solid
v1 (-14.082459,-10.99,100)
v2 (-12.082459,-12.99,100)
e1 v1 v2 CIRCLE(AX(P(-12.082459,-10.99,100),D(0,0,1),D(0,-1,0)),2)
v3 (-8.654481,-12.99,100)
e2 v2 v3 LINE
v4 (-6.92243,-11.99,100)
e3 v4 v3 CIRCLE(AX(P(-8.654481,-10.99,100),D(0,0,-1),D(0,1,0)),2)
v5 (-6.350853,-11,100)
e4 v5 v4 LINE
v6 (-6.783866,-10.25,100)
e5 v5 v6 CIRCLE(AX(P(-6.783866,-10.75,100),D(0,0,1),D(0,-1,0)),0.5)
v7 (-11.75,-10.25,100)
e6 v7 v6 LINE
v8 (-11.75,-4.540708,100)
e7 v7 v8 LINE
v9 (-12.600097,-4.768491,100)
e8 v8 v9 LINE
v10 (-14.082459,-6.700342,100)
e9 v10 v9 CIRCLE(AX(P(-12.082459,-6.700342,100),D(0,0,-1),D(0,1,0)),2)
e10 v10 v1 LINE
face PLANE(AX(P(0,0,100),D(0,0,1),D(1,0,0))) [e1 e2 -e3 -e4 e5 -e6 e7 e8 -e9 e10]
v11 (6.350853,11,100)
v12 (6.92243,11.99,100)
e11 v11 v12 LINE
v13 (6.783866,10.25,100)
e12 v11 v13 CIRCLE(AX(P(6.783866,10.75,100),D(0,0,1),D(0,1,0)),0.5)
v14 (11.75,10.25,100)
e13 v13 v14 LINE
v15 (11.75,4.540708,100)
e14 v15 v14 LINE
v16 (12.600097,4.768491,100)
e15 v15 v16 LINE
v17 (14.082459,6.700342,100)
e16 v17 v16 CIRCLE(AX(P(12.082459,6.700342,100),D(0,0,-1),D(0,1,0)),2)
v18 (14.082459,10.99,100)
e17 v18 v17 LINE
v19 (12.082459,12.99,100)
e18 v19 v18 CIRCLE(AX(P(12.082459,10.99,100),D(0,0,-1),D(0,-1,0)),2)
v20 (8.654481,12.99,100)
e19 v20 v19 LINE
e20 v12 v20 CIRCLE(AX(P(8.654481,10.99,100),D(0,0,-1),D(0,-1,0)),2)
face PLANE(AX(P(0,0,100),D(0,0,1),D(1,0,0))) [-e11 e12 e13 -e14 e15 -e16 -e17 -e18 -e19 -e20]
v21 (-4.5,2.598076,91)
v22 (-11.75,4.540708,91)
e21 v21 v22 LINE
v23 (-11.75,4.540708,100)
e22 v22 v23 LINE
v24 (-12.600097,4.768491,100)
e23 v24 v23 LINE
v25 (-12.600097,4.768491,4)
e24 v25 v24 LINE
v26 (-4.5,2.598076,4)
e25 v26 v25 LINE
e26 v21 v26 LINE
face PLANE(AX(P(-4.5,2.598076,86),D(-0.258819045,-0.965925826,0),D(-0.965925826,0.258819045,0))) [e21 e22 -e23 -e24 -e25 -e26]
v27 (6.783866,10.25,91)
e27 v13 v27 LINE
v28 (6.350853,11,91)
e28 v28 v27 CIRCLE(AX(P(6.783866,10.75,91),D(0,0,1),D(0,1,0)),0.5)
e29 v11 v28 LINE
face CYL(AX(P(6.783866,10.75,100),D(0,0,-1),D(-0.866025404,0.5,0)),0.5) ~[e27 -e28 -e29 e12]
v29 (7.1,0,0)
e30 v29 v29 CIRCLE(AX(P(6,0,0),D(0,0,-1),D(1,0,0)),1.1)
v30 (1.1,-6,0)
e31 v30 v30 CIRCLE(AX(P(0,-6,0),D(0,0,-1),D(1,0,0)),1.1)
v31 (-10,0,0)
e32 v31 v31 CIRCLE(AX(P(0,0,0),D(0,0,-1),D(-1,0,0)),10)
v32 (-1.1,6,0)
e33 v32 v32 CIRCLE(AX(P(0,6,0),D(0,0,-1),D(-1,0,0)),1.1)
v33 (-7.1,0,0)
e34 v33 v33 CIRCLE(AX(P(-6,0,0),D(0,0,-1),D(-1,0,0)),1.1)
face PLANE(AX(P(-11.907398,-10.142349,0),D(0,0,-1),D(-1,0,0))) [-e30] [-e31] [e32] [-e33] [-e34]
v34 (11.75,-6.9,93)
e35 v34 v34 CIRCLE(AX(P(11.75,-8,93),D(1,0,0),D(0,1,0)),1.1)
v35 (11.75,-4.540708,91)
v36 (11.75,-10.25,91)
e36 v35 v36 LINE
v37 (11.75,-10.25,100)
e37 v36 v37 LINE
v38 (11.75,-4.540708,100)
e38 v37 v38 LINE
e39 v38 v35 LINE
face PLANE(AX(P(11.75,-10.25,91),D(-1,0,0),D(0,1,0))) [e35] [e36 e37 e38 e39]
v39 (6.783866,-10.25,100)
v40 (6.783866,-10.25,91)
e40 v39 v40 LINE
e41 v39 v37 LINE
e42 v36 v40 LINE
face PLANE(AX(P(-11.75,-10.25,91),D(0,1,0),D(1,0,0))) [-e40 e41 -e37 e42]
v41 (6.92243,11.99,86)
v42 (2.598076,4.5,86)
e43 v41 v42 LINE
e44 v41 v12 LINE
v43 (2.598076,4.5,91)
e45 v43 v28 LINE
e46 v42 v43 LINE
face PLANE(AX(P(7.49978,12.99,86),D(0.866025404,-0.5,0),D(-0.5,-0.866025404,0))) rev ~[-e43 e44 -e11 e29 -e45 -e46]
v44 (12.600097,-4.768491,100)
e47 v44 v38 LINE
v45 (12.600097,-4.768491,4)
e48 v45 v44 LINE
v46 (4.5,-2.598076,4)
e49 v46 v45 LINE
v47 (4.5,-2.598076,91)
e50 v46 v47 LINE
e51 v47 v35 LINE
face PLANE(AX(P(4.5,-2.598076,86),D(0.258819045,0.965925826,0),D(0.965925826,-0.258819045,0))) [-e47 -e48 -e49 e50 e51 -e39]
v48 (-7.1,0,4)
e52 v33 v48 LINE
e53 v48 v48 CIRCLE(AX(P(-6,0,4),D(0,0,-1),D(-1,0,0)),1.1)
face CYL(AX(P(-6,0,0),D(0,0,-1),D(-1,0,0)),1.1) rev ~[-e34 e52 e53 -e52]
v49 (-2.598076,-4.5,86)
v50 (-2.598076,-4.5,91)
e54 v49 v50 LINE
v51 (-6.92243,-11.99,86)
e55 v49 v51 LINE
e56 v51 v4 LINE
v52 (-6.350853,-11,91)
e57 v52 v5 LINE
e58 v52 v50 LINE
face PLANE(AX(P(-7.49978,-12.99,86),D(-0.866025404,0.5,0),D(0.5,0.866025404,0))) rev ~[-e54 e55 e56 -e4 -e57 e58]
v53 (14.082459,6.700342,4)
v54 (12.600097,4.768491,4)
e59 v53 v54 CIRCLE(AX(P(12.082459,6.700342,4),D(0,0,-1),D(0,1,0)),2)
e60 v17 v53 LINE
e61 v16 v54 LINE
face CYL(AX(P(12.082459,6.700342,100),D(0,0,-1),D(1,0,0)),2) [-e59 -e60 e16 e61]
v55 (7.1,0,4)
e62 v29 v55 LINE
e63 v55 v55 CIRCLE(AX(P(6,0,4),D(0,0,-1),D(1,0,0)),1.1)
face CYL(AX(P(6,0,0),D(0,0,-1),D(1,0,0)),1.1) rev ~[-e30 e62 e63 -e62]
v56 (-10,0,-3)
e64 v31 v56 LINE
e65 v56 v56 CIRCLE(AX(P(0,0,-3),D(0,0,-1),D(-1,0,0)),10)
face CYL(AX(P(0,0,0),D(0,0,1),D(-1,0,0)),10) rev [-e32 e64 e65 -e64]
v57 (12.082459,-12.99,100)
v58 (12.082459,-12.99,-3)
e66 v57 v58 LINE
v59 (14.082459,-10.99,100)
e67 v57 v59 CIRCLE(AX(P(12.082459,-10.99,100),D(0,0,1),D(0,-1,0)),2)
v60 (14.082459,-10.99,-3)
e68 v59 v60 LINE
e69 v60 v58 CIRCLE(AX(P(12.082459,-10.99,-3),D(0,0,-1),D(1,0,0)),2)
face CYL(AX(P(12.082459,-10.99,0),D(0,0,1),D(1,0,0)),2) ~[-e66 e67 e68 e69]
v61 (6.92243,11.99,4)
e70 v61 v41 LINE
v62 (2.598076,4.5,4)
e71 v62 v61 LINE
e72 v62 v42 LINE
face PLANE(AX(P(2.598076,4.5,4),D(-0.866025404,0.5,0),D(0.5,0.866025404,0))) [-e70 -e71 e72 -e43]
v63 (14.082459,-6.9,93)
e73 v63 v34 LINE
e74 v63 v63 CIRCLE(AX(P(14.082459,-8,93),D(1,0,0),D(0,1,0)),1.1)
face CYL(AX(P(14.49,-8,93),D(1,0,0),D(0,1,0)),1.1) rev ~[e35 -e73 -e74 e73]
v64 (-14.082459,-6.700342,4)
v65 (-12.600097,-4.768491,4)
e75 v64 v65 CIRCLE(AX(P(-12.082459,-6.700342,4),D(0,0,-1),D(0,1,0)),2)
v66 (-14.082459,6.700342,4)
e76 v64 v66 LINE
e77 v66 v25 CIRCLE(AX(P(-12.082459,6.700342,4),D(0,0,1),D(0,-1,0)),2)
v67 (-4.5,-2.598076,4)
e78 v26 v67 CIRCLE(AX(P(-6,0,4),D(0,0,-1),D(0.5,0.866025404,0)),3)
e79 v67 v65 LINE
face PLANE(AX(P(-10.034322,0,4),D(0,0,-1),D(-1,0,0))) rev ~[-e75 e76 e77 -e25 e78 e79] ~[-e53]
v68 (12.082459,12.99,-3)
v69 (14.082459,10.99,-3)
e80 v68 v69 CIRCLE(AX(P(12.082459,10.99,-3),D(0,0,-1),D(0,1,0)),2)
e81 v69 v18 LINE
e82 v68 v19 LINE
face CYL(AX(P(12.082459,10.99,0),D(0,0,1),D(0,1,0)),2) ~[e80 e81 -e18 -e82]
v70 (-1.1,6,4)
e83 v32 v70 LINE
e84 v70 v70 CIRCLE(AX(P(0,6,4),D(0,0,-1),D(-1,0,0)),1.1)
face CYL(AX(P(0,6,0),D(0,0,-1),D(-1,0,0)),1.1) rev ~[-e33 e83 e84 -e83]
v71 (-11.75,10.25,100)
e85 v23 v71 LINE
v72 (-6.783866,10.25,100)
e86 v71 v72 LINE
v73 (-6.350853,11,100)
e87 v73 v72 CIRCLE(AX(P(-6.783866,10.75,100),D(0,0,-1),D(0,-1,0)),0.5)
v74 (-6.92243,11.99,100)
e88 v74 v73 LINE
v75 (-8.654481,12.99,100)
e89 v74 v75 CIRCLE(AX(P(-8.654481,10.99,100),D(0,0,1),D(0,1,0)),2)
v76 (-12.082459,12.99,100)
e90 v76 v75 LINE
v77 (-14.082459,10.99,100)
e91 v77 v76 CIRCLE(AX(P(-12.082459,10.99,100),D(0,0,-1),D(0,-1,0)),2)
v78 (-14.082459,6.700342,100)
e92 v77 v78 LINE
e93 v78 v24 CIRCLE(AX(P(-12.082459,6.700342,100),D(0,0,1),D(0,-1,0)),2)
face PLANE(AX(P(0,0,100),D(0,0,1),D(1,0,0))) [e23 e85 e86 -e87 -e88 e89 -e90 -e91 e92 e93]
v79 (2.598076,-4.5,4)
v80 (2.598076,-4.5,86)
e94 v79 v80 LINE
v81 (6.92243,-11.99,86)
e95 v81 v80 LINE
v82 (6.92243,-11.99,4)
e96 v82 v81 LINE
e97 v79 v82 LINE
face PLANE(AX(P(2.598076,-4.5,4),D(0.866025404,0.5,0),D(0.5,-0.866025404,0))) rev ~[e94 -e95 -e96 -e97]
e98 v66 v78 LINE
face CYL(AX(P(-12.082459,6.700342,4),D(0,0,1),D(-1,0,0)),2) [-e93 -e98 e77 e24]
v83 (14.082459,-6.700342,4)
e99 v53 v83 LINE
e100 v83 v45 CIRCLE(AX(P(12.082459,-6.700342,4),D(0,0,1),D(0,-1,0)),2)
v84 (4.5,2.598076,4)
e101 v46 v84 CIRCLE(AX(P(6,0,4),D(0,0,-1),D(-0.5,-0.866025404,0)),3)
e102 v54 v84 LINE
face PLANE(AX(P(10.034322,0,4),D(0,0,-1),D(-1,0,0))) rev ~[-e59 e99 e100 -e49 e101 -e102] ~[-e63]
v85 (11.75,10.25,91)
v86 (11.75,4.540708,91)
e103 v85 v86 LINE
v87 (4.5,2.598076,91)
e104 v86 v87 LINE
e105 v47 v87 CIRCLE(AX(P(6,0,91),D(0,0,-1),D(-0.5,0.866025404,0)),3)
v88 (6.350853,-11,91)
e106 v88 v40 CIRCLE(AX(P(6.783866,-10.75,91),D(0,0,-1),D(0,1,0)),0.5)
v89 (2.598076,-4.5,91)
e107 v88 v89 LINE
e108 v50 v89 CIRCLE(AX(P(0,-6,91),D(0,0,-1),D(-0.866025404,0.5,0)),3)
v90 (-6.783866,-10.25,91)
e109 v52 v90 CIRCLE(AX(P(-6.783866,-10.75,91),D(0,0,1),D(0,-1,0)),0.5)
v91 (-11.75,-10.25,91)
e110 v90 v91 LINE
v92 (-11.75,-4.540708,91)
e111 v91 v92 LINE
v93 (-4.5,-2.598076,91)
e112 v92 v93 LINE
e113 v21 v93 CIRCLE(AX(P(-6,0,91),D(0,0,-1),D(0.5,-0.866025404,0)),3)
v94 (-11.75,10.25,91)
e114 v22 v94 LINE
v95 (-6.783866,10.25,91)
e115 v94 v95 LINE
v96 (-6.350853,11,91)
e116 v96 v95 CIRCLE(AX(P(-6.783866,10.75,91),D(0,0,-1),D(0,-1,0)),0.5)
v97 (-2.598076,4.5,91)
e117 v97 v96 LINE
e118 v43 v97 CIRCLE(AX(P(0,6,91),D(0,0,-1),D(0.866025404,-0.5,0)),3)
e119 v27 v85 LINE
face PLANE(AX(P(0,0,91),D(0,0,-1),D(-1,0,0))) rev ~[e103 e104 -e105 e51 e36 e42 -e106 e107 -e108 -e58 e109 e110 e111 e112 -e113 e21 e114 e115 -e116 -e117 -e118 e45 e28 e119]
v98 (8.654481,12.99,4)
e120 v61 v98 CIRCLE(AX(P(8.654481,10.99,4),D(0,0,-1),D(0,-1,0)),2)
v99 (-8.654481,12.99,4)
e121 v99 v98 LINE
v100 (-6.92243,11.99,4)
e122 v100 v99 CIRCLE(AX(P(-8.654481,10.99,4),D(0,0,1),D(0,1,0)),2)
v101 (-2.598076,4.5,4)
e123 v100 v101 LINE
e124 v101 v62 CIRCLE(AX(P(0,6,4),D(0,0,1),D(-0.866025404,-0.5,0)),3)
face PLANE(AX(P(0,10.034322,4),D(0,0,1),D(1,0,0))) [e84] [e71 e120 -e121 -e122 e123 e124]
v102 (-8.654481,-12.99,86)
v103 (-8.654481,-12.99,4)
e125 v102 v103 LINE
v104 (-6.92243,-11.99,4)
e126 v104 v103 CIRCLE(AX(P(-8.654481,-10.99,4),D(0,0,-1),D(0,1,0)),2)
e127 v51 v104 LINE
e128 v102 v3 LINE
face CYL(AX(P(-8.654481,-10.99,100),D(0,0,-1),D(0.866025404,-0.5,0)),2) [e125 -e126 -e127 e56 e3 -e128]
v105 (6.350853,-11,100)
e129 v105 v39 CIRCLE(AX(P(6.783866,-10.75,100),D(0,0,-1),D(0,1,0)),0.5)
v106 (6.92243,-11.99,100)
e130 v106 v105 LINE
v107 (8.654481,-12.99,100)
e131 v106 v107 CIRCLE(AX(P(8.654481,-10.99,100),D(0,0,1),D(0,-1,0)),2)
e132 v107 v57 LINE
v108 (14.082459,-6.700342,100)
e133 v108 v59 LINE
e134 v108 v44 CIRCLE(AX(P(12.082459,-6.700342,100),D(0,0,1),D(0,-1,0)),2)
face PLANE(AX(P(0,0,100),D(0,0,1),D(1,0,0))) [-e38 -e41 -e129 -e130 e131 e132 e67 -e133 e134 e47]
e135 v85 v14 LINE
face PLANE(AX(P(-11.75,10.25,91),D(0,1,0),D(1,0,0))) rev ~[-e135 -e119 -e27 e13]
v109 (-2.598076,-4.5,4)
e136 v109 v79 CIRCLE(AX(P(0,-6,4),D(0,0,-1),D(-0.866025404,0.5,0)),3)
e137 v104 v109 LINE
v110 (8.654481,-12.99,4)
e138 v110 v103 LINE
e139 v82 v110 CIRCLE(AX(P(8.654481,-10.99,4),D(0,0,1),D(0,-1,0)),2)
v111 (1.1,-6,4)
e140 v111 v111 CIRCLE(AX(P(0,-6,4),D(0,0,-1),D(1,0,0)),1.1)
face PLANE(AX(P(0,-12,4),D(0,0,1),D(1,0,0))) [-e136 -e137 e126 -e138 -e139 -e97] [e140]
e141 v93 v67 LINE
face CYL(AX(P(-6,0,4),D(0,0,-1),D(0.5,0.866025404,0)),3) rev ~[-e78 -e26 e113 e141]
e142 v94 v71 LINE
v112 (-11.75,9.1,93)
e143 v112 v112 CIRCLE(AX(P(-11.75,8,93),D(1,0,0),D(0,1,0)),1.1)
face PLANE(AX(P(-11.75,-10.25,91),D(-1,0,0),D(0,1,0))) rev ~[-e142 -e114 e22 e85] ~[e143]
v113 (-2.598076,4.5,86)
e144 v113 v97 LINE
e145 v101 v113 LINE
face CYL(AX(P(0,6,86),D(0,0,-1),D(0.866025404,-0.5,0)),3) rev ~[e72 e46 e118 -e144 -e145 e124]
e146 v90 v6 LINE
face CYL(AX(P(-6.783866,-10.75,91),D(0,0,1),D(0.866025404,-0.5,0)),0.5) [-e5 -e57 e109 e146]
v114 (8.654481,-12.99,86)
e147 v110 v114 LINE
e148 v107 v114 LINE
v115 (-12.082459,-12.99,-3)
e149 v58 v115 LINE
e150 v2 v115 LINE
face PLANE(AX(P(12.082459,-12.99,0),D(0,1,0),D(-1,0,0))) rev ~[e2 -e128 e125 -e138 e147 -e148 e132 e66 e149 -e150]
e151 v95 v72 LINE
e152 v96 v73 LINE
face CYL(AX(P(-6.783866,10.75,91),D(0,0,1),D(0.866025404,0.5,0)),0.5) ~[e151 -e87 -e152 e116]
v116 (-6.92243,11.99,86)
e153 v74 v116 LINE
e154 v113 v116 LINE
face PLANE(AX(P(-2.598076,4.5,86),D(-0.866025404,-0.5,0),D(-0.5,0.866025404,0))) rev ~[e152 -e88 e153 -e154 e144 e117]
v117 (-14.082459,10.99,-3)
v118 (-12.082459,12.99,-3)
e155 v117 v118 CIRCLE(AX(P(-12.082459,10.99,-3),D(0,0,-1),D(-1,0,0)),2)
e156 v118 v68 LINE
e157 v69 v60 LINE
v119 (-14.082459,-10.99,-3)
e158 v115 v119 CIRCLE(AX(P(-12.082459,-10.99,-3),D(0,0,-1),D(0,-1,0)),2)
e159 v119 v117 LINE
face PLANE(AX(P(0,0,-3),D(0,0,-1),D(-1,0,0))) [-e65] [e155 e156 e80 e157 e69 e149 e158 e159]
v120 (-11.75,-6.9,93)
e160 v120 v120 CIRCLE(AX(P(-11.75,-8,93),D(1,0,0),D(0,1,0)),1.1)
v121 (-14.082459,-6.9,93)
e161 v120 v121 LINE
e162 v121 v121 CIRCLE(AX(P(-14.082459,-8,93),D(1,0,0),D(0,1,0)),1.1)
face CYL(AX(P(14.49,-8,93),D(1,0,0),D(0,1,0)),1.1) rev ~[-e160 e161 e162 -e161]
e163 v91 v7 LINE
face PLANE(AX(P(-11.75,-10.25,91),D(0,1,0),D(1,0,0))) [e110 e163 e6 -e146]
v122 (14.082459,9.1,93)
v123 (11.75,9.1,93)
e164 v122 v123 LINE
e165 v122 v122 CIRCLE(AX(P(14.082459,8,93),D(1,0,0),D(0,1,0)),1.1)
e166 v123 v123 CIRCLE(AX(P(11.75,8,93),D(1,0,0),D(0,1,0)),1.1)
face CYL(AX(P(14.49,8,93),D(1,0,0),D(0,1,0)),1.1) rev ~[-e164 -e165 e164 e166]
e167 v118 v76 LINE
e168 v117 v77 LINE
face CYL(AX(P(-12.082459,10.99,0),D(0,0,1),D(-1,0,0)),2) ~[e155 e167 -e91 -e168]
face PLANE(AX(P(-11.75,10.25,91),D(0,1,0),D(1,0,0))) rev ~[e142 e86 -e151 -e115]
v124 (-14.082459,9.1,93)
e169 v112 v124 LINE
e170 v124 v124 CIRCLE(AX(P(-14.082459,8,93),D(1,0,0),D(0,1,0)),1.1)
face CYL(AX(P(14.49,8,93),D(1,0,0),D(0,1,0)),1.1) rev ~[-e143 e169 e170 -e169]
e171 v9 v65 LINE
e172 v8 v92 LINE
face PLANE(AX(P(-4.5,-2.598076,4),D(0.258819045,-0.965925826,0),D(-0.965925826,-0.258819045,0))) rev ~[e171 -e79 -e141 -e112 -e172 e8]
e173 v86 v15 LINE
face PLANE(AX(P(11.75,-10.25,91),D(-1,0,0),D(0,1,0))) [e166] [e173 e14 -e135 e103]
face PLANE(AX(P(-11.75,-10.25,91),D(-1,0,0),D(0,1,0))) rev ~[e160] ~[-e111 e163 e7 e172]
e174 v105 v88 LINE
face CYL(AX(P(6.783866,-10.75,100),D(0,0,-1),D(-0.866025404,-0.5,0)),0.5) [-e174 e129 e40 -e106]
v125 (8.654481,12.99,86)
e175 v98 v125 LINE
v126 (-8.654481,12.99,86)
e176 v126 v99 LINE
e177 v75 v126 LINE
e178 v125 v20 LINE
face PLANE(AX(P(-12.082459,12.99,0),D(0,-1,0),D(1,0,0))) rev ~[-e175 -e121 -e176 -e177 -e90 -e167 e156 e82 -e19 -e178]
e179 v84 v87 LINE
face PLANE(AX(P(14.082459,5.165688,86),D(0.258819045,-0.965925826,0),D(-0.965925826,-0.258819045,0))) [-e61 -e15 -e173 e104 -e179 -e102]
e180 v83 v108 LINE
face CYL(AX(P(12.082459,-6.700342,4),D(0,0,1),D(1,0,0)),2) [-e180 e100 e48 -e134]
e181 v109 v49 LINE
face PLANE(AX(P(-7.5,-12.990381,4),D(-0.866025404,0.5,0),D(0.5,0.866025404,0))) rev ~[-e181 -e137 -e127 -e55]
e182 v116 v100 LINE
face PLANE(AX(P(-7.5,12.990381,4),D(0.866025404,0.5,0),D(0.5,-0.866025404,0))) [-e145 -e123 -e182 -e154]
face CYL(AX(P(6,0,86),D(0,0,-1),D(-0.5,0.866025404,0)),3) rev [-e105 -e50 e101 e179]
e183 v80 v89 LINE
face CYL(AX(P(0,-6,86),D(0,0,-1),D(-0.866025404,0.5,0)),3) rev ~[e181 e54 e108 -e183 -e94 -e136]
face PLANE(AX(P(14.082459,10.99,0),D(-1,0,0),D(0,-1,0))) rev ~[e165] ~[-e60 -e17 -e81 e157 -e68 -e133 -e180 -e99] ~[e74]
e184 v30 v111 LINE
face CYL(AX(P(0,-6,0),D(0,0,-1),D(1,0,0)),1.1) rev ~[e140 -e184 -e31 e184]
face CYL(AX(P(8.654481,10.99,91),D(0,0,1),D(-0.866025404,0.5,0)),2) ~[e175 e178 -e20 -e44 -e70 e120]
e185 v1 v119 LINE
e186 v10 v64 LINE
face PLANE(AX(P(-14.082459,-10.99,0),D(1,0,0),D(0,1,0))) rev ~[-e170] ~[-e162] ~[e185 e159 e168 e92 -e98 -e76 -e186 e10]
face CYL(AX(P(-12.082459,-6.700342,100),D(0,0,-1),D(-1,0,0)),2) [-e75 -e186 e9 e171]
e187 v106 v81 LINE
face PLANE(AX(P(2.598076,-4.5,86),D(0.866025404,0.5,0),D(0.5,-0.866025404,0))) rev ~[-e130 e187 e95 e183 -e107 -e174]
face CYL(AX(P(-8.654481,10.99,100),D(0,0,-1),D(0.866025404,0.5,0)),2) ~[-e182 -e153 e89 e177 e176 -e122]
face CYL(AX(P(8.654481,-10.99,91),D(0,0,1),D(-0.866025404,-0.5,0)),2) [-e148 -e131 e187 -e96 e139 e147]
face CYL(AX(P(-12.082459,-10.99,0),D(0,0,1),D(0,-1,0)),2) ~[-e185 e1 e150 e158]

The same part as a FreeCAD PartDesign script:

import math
import FreeCAD as App
import Part
import Sketcher
Q = App.Units.Quantity


def edges_at(feature, points):
    """Names of the edges that pass closest to the given points."""
    edges = feature.Shape.Edges
    near = lambda p: min(range(len(edges)), key=lambda i: edges[i].distToShape(Part.Vertex(*p))[0])
    return sorted({f"Edge{near(p) + 1}" for p in points})

doc = App.newDocument("Part")
body = doc.addObject("PartDesign::Body", "Body")

# Sketch on XY plane
sketch1 = body.newObject("Sketcher::SketchObject", "Sketch")
sketch1.AttachmentSupport = (doc.getObject("XY_Plane"), [""])
sketch1.MapMode = "FlatFace"
sketch1.addGeometry(Part.Circle(App.Vector(0, 0, 0), App.Vector(0, 0, 1), 15), False)
sketch1.addConstraint([
    Sketcher.Constraint("Coincident", 0, 3, -1, 1),
    Sketcher.Constraint("Diameter", 0, 30.0),
])
pad1 = body.newObject("PartDesign::Pad", "Pad")
pad1.Profile = sketch1
pad1.Length = 91

# Sketch on XY plane
sketch2 = body.newObject("Sketcher::SketchObject", "Sketch001")
sketch2.AttachmentSupport = (doc.getObject("XY_Plane"), [""])
sketch2.MapMode = "FlatFace"
sketch2.addGeometry([
    Part.Circle(App.Vector(0, 6, 0), App.Vector(0, 0, 1), 1.1),
    Part.Circle(App.Vector(0, -6, 0), App.Vector(0, 0, 1), 1.1),
    Part.Circle(App.Vector(-6, 0, 0), App.Vector(0, 0, 1), 1.1),
    Part.Circle(App.Vector(6, 0, 0), App.Vector(0, 0, 1), 1.1),
], False)
sketch2.addConstraint([
    Sketcher.Constraint("Equal", 0, 1),
    Sketcher.Constraint("Equal", 1, 2),
    Sketcher.Constraint("Equal", 2, 3),
    Sketcher.Constraint("Symmetric", 0, 3, 1, 3, -1, 1),
    Sketcher.Constraint("Symmetric", 2, 3, 3, 3, -1, 1),
    Sketcher.Constraint("PointOnObject", 0, 3, -2),
    Sketcher.Constraint("PointOnObject", 2, 3, -1),
    Sketcher.Constraint("Diameter", 0, 2.2),
    Sketcher.Constraint("DistanceY", -1, 1, 0, 3, 6.0),
    Sketcher.Constraint("DistanceX", 2, 3, -1, 1, 6.0),
])
pocket1 = body.newObject("PartDesign::Pocket", "Pocket")
pocket1.Profile = sketch2
pocket1.Length = 10
pocket1.Reversed = True

# Sketch on XY plane
sketch3 = body.newObject("Sketcher::SketchObject", "Sketch002")
sketch3.AttachmentSupport = (doc.getObject("XY_Plane"), [""])
sketch3.MapMode = "FlatFace"
sketch3.AttachmentOffset = App.Placement(App.Vector(0, 0, 91), App.Rotation())
sketch3.addGeometry([
    Part.LineSegment(App.Vector(-14, 13, 0), App.Vector(-14, -13, 0)),  # 0
    Part.LineSegment(App.Vector(-14, -13, 0), App.Vector(14, -13, 0)),  # 1
    Part.LineSegment(App.Vector(14, -13, 0), App.Vector(14, 13, 0)),  # 2
    Part.LineSegment(App.Vector(14, 13, 0), App.Vector(-14, 13, 0)),  # 3
    Part.LineSegment(App.Vector(12, -10, 0), App.Vector(-12, -10, 0)),  # 4
    Part.LineSegment(App.Vector(-12, -10, 0), App.Vector(-12, 10, 0)),  # 5
    Part.LineSegment(App.Vector(-12, 10, 0), App.Vector(12, 10, 0)),  # 6
    Part.LineSegment(App.Vector(12, 10, 0), App.Vector(12, -10, 0)),  # 7
], False)
sketch3.addConstraint([
    Sketcher.Constraint("Coincident", 0, 2, 1, 1),
    Sketcher.Constraint("Coincident", 1, 2, 2, 1),
    Sketcher.Constraint("Coincident", 2, 2, 3, 1),
    Sketcher.Constraint("Coincident", 3, 2, 0, 1),
    Sketcher.Constraint("Coincident", 4, 2, 5, 1),
    Sketcher.Constraint("Coincident", 5, 2, 6, 1),
    Sketcher.Constraint("Coincident", 6, 2, 7, 1),
    Sketcher.Constraint("Coincident", 7, 2, 4, 1),
    Sketcher.Constraint("Vertical", 0),
    Sketcher.Constraint("Horizontal", 1),
    Sketcher.Constraint("Vertical", 2),
    Sketcher.Constraint("Horizontal", 3),
    Sketcher.Constraint("Horizontal", 4),
    Sketcher.Constraint("Vertical", 5),
    Sketcher.Constraint("Horizontal", 6),
    Sketcher.Constraint("Vertical", 7),
    Sketcher.Constraint("Symmetric", 0, 2, 2, 2, -1, 1),
    Sketcher.Constraint("Symmetric", 4, 2, 6, 2, -1, 1),
    Sketcher.Constraint("DistanceX", 4, 2, 4, 1, 23.5),
    Sketcher.Constraint("DistanceY", 5, 1, 5, 2, 20.5),
    Sketcher.Constraint("DistanceX", 1, 1, 1, 2, 28.98),
    Sketcher.Constraint("DistanceY", 0, 2, 0, 1, 25.98),
])
pad2 = body.newObject("PartDesign::Pad", "Pad001")
pad2.Profile = sketch3
pad2.Length = 9

# Sketch on XY plane
sketch4 = body.newObject("Sketcher::SketchObject", "Sketch003")
sketch4.AttachmentSupport = (doc.getObject("XY_Plane"), [""])
sketch4.MapMode = "FlatFace"
sketch4.AttachmentOffset = App.Placement(App.Vector(0, 0, 4), App.Rotation())
sketch4.addGeometry([
    Part.LineSegment(App.Vector(7.5, 13, 0), App.Vector(2.6, 4.5, 0)),  # 0
    Part.ArcOfCircle(Part.Circle(App.Vector(0, 6, 0), App.Vector(0, 0, 1), 3), math.radians(-150), math.radians(-30)),  # 1
    Part.LineSegment(App.Vector(-2.6, 4.5, 0), App.Vector(-7.5, 13, 0)),  # 2
    Part.ArcOfCircle(Part.Circle(App.Vector(0, 0, 0), App.Vector(0, 0, 1), 15), math.radians(60), math.radians(120)),  # 3
    Part.LineSegment(App.Vector(-4.5, -2.6, 0), App.Vector(-13, -7.5, 0)),  # 4
    Part.ArcOfCircle(Part.Circle(App.Vector(0, 0, 0), App.Vector(0, 0, 1), 15), math.radians(150), math.radians(210)),  # 5
    Part.LineSegment(App.Vector(-13, 7.5, 0), App.Vector(-4.5, 2.6, 0)),  # 6
    Part.ArcOfCircle(Part.Circle(App.Vector(-6, 0, 0), App.Vector(0, 0, 1), 3), math.radians(-60), math.radians(60)),  # 7
    Part.LineSegment(App.Vector(2.6, -4.5, 0), App.Vector(7.5, -13, 0)),  # 8
    Part.ArcOfCircle(Part.Circle(App.Vector(0, 0, 0), App.Vector(0, 0, 1), 15), math.radians(-120), math.radians(-60)),  # 9
    Part.LineSegment(App.Vector(-7.5, -13, 0), App.Vector(-2.6, -4.5, 0)),  # 10
    Part.ArcOfCircle(Part.Circle(App.Vector(0, -6, 0), App.Vector(0, 0, 1), 3), math.radians(30), math.radians(150)),  # 11
    Part.LineSegment(App.Vector(4.5, 2.6, 0), App.Vector(13, 7.5, 0)),  # 12
    Part.ArcOfCircle(Part.Circle(App.Vector(0, 0, 0), App.Vector(0, 0, 1), 15), math.radians(-30), math.radians(30)),  # 13
    Part.LineSegment(App.Vector(13, -7.5, 0), App.Vector(4.5, -2.6, 0)),  # 14
    Part.ArcOfCircle(Part.Circle(App.Vector(6, 0, 0), App.Vector(0, 0, 1), 3), math.radians(120), math.radians(240)),  # 15
], False)
sketch4.addConstraint([
    Sketcher.Constraint("Tangent", 0, 2, 1, 2),
    Sketcher.Constraint("Tangent", 1, 1, 2, 1),
    Sketcher.Constraint("Coincident", 2, 2, 3, 2),
    Sketcher.Constraint("Coincident", 3, 1, 0, 1),
    Sketcher.Constraint("Coincident", 4, 2, 5, 2),
    Sketcher.Constraint("Coincident", 5, 1, 6, 1),
    Sketcher.Constraint("Tangent", 6, 2, 7, 2),
    Sketcher.Constraint("Tangent", 7, 1, 4, 1),
    Sketcher.Constraint("Coincident", 8, 2, 9, 2),
    Sketcher.Constraint("Coincident", 9, 1, 10, 1),
    Sketcher.Constraint("Tangent", 10, 2, 11, 2),
    Sketcher.Constraint("Tangent", 11, 1, 8, 1),
    Sketcher.Constraint("Coincident", 12, 2, 13, 2),
    Sketcher.Constraint("Coincident", 13, 1, 14, 1),
    Sketcher.Constraint("Tangent", 14, 2, 15, 2),
    Sketcher.Constraint("Tangent", 15, 1, 12, 1),
    Sketcher.Constraint("Coincident", 3, 3, -1, 1),
    Sketcher.Constraint("Coincident", 5, 3, -1, 1),
    Sketcher.Constraint("Coincident", 9, 3, -1, 1),
    Sketcher.Constraint("Coincident", 13, 3, -1, 1),
    Sketcher.Constraint("Equal", 3, 5),
    Sketcher.Constraint("Equal", 1, 7),
    Sketcher.Constraint("Equal", 5, 9),
    Sketcher.Constraint("Equal", 7, 11),
    Sketcher.Constraint("Equal", 9, 13),
    Sketcher.Constraint("Equal", 11, 15),
    Sketcher.Constraint("Symmetric", 1, 3, 11, 3, -1, 1),
    Sketcher.Constraint("Symmetric", 7, 3, 15, 3, -1, 1),
    Sketcher.Constraint("Symmetric", 0, 2, 1, 1, -2),
    Sketcher.Constraint("Symmetric", 7, 1, 14, 2, -2),
    Sketcher.Constraint("Perpendicular", 2, 4),
    Sketcher.Constraint("Perpendicular", 0, 6),
    Sketcher.Constraint("Perpendicular", 4, 8),
    Sketcher.Constraint("Perpendicular", 6, 10),
    Sketcher.Constraint("Perpendicular", 8, 12),
    Sketcher.Constraint("Equal", 2, 4),
    Sketcher.Constraint("Radius", 1, 3.0),
    Sketcher.Constraint("Radius", 3, 15.0),
    Sketcher.Constraint("Angle", 0, Q("-120 deg")),
    Sketcher.Constraint("DistanceY", -1, 1, 1, 3, 6.0),
])
pocket2 = body.newObject("PartDesign::Pocket", "Pocket001")
pocket2.Profile = sketch4
pocket2.Length = 87
pocket2.Reversed = True

# Sketch on XY plane
sketch5 = body.newObject("Sketcher::SketchObject", "Sketch004")
sketch5.AttachmentSupport = (doc.getObject("XY_Plane"), [""])
sketch5.MapMode = "FlatFace"
sketch5.AttachmentOffset = App.Placement(App.Vector(0, 0, 91), App.Rotation())
sketch5.addGeometry([
    Part.LineSegment(App.Vector(14, 13, 0), App.Vector(14, -13, 0)),
    Part.LineSegment(App.Vector(14, -13, 0), App.Vector(-14, -13, 0)),
    Part.LineSegment(App.Vector(-14, -13, 0), App.Vector(-14, 13, 0)),
    Part.LineSegment(App.Vector(-14, 13, 0), App.Vector(14, 13, 0)),
], False)
sketch5.addConstraint([
    Sketcher.Constraint("Coincident", 0, 2, 1, 1),
    Sketcher.Constraint("Coincident", 1, 2, 2, 1),
    Sketcher.Constraint("Coincident", 2, 2, 3, 1),
    Sketcher.Constraint("Coincident", 3, 2, 0, 1),
    Sketcher.Constraint("Vertical", 0),
    Sketcher.Constraint("Horizontal", 1),
    Sketcher.Constraint("Vertical", 2),
    Sketcher.Constraint("Horizontal", 3),
    Sketcher.Constraint("Symmetric", 0, 2, 2, 2, -1, 1),
    Sketcher.Constraint("DistanceX", 1, 2, 1, 1, 28.98),
    Sketcher.Constraint("DistanceY", 0, 2, 0, 1, 25.98),
])
pad3 = body.newObject("PartDesign::Pad", "Pad002")
pad3.Profile = sketch5
pad3.Length = 5
pad3.Reversed = True

# Sketch on YZ plane
sketch6 = body.newObject("Sketcher::SketchObject", "Sketch005")
sketch6.AttachmentSupport = (doc.getObject("YZ_Plane"), [""])
sketch6.MapMode = "FlatFace"
sketch6.AttachmentOffset = App.Placement(App.Vector(0, 0, 14.49), App.Rotation())
sketch6.addGeometry([
    Part.Circle(App.Vector(-8, 93, 0), App.Vector(0, 0, 1), 1.1),
    Part.Circle(App.Vector(8, 93, 0), App.Vector(0, 0, 1), 1.1),
], False)
sketch6.addConstraint([
    Sketcher.Constraint("Equal", 0, 1),
    Sketcher.Constraint("Symmetric", 0, 3, 1, 3, -2),
    Sketcher.Constraint("Diameter", 0, 2.2),
    Sketcher.Constraint("DistanceX", 0, 3, -1, 1, 8.0),
    Sketcher.Constraint("DistanceY", -1, 1, 0, 3, 93.0),
])
pocket3 = body.newObject("PartDesign::Pocket", "Pocket002")
pocket3.Profile = sketch6
pocket3.Type = "ThroughAll"

# Sketch on XY plane
sketch7 = body.newObject("Sketcher::SketchObject", "Sketch006")
sketch7.AttachmentSupport = (doc.getObject("XY_Plane"), [""])
sketch7.MapMode = "FlatFace"
sketch7.AttachmentOffset = App.Placement(App.Vector(0, 0, 4), App.Rotation())
sketch7.addGeometry(Part.Circle(App.Vector(0, -12, 0), App.Vector(0, 0, 1), 0.8), False)
sketch7.addConstraint([
    Sketcher.Constraint("PointOnObject", 0, 3, -2),
    Sketcher.Constraint("Diameter", 0, 1.6),
    Sketcher.Constraint("DistanceY", 0, 3, -1, 1, 12.0),
])
pocket4 = body.newObject("PartDesign::Pocket", "Pocket003")
pocket4.Profile = sketch7
pocket4.Type = "ThroughAll"

# Sketch on XY plane
sketch8 = body.newObject("Sketcher::SketchObject", "Sketch007")
sketch8.AttachmentSupport = (doc.getObject("XY_Plane"), [""])
sketch8.MapMode = "FlatFace"
sketch8.AttachmentOffset = App.Placement(App.Vector(0, 0, 86), App.Rotation())
sketch8.addGeometry([
    Part.LineSegment(App.Vector(-2.6, 4.5, 0), App.Vector(-7.5, 13, 0)),  # 0
    Part.LineSegment(App.Vector(-7.5, 13, 0), App.Vector(7.5, 13, 0)),  # 1
    Part.LineSegment(App.Vector(7.5, 13, 0), App.Vector(2.6, 4.5, 0)),  # 2
    Part.ArcOfCircle(Part.Circle(App.Vector(0, 6, 0), App.Vector(0, 0, 1), 3), math.radians(-150), math.radians(-30)),  # 3
    Part.LineSegment(App.Vector(2.6, -4.5, 0), App.Vector(7.5, -13, 0)),  # 4
    Part.LineSegment(App.Vector(7.5, -13, 0), App.Vector(-7.5, -13, 0)),  # 5
    Part.LineSegment(App.Vector(-7.5, -13, 0), App.Vector(-2.6, -4.5, 0)),  # 6
    Part.ArcOfCircle(Part.Circle(App.Vector(0, -6, 0), App.Vector(0, 0, 1), 3), math.radians(30), math.radians(150)),  # 7
], False)
sketch8.addConstraint([
    Sketcher.Constraint("Coincident", 0, 2, 1, 1),
    Sketcher.Constraint("Coincident", 1, 2, 2, 1),
    Sketcher.Constraint("Tangent", 2, 2, 3, 2),
    Sketcher.Constraint("Tangent", 3, 1, 0, 1),
    Sketcher.Constraint("Coincident", 4, 2, 5, 1),
    Sketcher.Constraint("Coincident", 5, 2, 6, 1),
    Sketcher.Constraint("Tangent", 6, 2, 7, 2),
    Sketcher.Constraint("Tangent", 7, 1, 4, 1),
    Sketcher.Constraint("Horizontal", 1),
    Sketcher.Constraint("Horizontal", 5),
    Sketcher.Constraint("Equal", 3, 7),
    Sketcher.Constraint("Symmetric", 3, 3, 7, 3, -1, 1),
    Sketcher.Constraint("Symmetric", 0, 2, 4, 2, -1, 1),
    Sketcher.Constraint("Symmetric", 2, 2, 3, 1, -2),
    Sketcher.Constraint("Parallel", 2, 6),
    Sketcher.Constraint("Radius", 3, 3.0),
    Sketcher.Constraint("Angle", 0, Q("120 deg")),
    Sketcher.Constraint("DistanceY", -1, 1, 3, 3, 6.0),
    Sketcher.Constraint("DistanceY", -1, 1, 0, 2, 12.99),
])
pocket5 = body.newObject("PartDesign::Pocket", "Pocket004")
pocket5.Profile = sketch8
pocket5.Type = "ThroughAll"
pocket5.Reversed = True
doc.recompute()

fillet = body.newObject("PartDesign::Fillet", "Fillet")
fillet.Base = (pocket5, edges_at(pocket5, [
    (5.918, 10.25, 95.5),
    (-5.918, 10.25, 95.5),
    (-5.918, -10.25, 95.5),
    (5.918, -10.25, 95.5),
]))
fillet.Radius = 0.5

# Sketch on XY plane
sketch9 = body.newObject("Sketcher::SketchObject", "Sketch008")
sketch9.AttachmentSupport = (doc.getObject("XY_Plane"), [""])
sketch9.MapMode = "FlatFace"
sketch9.AttachmentOffset = App.Placement(App.Vector(0, 0, 4), App.Rotation())
sketch9.addGeometry([
    Part.LineSegment(App.Vector(-14.1, 5.2, 0), App.Vector(-4.5, 2.6, 0)),  # 0
    Part.LineSegment(App.Vector(-4.5, 2.6, 0), App.Vector(-13, 7.5, 0)),  # 1
    Part.ArcOfCircle(Part.Circle(App.Vector(0, 0, 0), App.Vector(0, 0, 1), 15), math.radians(150), math.radians(159.86)),  # 2
    Part.LineSegment(App.Vector(-13, -7.5, 0), App.Vector(-4.5, -2.6, 0)),  # 3
    Part.LineSegment(App.Vector(-4.5, -2.6, 0), App.Vector(-14.1, -5.2, 0)),  # 4
    Part.ArcOfCircle(Part.Circle(App.Vector(0, 0, 0), App.Vector(0, 0, 1), 15), math.radians(-159.86), math.radians(-150)),  # 5
    Part.LineSegment(App.Vector(14.1, -5.2, 0), App.Vector(4.5, -2.6, 0)),  # 6
    Part.LineSegment(App.Vector(4.5, -2.6, 0), App.Vector(13, -7.5, 0)),  # 7
    Part.ArcOfCircle(Part.Circle(App.Vector(0, 0, 0), App.Vector(0, 0, 1), 15), math.radians(-30), math.radians(-20.14)),  # 8
    Part.LineSegment(App.Vector(13, 7.5, 0), App.Vector(4.5, 2.6, 0)),  # 9
    Part.LineSegment(App.Vector(4.5, 2.6, 0), App.Vector(14.1, 5.2, 0)),  # 10
    Part.ArcOfCircle(Part.Circle(App.Vector(0, 0, 0), App.Vector(0, 0, 1), 15), math.radians(20.14), math.radians(30)),  # 11
], False)
sketch9.addConstraint([
    Sketcher.Constraint("Coincident", 0, 2, 1, 1),
    Sketcher.Constraint("Coincident", 1, 2, 2, 1),
    Sketcher.Constraint("Coincident", 2, 2, 0, 1),
    Sketcher.Constraint("Coincident", 3, 2, 4, 1),
    Sketcher.Constraint("Coincident", 4, 2, 5, 1),
    Sketcher.Constraint("Coincident", 5, 2, 3, 1),
    Sketcher.Constraint("Coincident", 6, 2, 7, 1),
    Sketcher.Constraint("Coincident", 7, 2, 8, 1),
    Sketcher.Constraint("Coincident", 8, 2, 6, 1),
    Sketcher.Constraint("Coincident", 9, 2, 10, 1),
    Sketcher.Constraint("Coincident", 10, 2, 11, 1),
    Sketcher.Constraint("Coincident", 11, 2, 9, 1),
    Sketcher.Constraint("Coincident", 2, 3, -1, 1),
    Sketcher.Constraint("Coincident", 5, 3, -1, 1),
    Sketcher.Constraint("Coincident", 8, 3, -1, 1),
    Sketcher.Constraint("Coincident", 11, 3, -1, 1),
    Sketcher.Constraint("Equal", 2, 5),
    Sketcher.Constraint("Equal", 5, 8),
    Sketcher.Constraint("Equal", 8, 11),
    Sketcher.Constraint("Symmetric", 0, 2, 6, 2, -1, 1),
    Sketcher.Constraint("Symmetric", 3, 2, 9, 2, -1, 1),
    Sketcher.Constraint("Symmetric", 3, 2, 6, 2, -2),
    Sketcher.Constraint("Parallel", 0, 6),
    Sketcher.Constraint("Parallel", 1, 7),
    Sketcher.Constraint("Parallel", 3, 9),
    Sketcher.Constraint("Parallel", 4, 10),
    Sketcher.Constraint("Horizontal", 5, 2, 7, 2),
    Sketcher.Constraint("Horizontal", 4, 2, 8, 2),
    Sketcher.Constraint("Radius", 2, 15.0),
    Sketcher.Constraint("Angle", 0, Q("-15 deg")),
    Sketcher.Constraint("Angle", 1, Q("150 deg")),
    Sketcher.Constraint("DistanceX", 3, 2, 6, 2, 9.0),
    Sketcher.Constraint("DistanceY", -1, 1, 1, 2, 7.5),
])
pad4 = body.newObject("PartDesign::Pad", "Pad003")
pad4.Profile = sketch9
pad4.Length = 82

# Sketch on XY plane
sketch10 = body.newObject("Sketcher::SketchObject", "Sketch009")
sketch10.AttachmentSupport = (doc.getObject("XY_Plane"), [""])
sketch10.MapMode = "FlatFace"
sketch10.AttachmentOffset = App.Placement(App.Vector(0, 0, 86), App.Rotation())
sketch10.addGeometry([
    Part.LineSegment(App.Vector(-14.08, 12.99, 0), App.Vector(-14.08, -12.99, 0)),  # 0
    Part.LineSegment(App.Vector(-14.08, -12.99, 0), App.Vector(-14.49, -12.99, 0)),  # 1
    Part.LineSegment(App.Vector(-14.49, -12.99, 0), App.Vector(-14.49, 12.99, 0)),  # 2
    Part.LineSegment(App.Vector(-14.49, 12.99, 0), App.Vector(-14.08, 12.99, 0)),  # 3
    Part.LineSegment(App.Vector(14.49, 12.99, 0), App.Vector(14.49, -12.99, 0)),  # 4
    Part.LineSegment(App.Vector(14.49, -12.99, 0), App.Vector(14.08, -12.99, 0)),  # 5
    Part.LineSegment(App.Vector(14.08, -12.99, 0), App.Vector(14.08, 12.99, 0)),  # 6
    Part.LineSegment(App.Vector(14.08, 12.99, 0), App.Vector(14.49, 12.99, 0)),  # 7
], False)
sketch10.addConstraint([
    Sketcher.Constraint("Coincident", 0, 2, 1, 1),
    Sketcher.Constraint("Coincident", 1, 2, 2, 1),
    Sketcher.Constraint("Coincident", 2, 2, 3, 1),
    Sketcher.Constraint("Coincident", 3, 2, 0, 1),
    Sketcher.Constraint("Coincident", 4, 2, 5, 1),
    Sketcher.Constraint("Coincident", 5, 2, 6, 1),
    Sketcher.Constraint("Coincident", 6, 2, 7, 1),
    Sketcher.Constraint("Coincident", 7, 2, 4, 1),
    Sketcher.Constraint("Vertical", 0),
    Sketcher.Constraint("Horizontal", 1),
    Sketcher.Constraint("Vertical", 2),
    Sketcher.Constraint("Horizontal", 3),
    Sketcher.Constraint("Vertical", 4),
    Sketcher.Constraint("Horizontal", 5),
    Sketcher.Constraint("Vertical", 6),
    Sketcher.Constraint("Horizontal", 7),
    Sketcher.Constraint("Symmetric", 2, 2, 4, 2, -1, 1),
    Sketcher.Constraint("Symmetric", 0, 2, 6, 2, -1, 1),
    Sketcher.Constraint("Horizontal", 1, 2, 4, 2),
    Sketcher.Constraint("DistanceY", 0, 2, 0, 1, 25.98),
    Sketcher.Constraint("DistanceX", 1, 2, -1, 1, 14.49),
    Sketcher.Constraint("DistanceX", 1, 2, 1, 1, 0.407541),
])
pocket6 = body.newObject("PartDesign::Pocket", "Pocket005")
pocket6.Profile = sketch10
pocket6.Type = "ThroughAll"
pocket6.Reversed = True
doc.recompute()

fillet2 = body.newObject("PartDesign::Fillet", "Fillet001")
fillet2.Base = (pocket6, edges_at(pocket6, [
    (-14.082, -12.99, 93),
    (-14.082, 12.99, 93),
    (14.082, 12.99, 93),
    (14.082, -12.99, 93),
]))
fillet2.Radius = 2

# Sketch on XY plane
sketch11 = body.newObject("Sketcher::SketchObject", "Sketch010")
sketch11.AttachmentSupport = (doc.getObject("XY_Plane"), [""])
sketch11.MapMode = "FlatFace"
sketch11.AttachmentOffset = App.Placement(App.Vector(0, 0, 86), App.Rotation())
sketch11.addGeometry([
    Part.LineSegment(App.Vector(14.1, -5.2, 0), App.Vector(4.5, -2.6, 0)),  # 0
    Part.ArcOfCircle(Part.Circle(App.Vector(6, 0, 0), App.Vector(0, 0, 1), 3), math.radians(120), math.radians(240)),  # 1
    Part.LineSegment(App.Vector(4.5, 2.6, 0), App.Vector(14.1, 5.2, 0)),  # 2
    Part.LineSegment(App.Vector(14.1, 5.2, 0), App.Vector(14.1, -5.2, 0)),  # 3
    Part.LineSegment(App.Vector(-14.1, -5.2, 0), App.Vector(-14.1, 5.2, 0)),  # 4
    Part.LineSegment(App.Vector(-14.1, 5.2, 0), App.Vector(-4.5, 2.6, 0)),  # 5
    Part.ArcOfCircle(Part.Circle(App.Vector(-6, 0, 0), App.Vector(0, 0, 1), 3), math.radians(-60), math.radians(60)),  # 6
    Part.LineSegment(App.Vector(-4.5, -2.6, 0), App.Vector(-14.1, -5.2, 0)),  # 7
], False)
sketch11.addConstraint([
    Sketcher.Constraint("Coincident", 0, 2, 1, 2),
    Sketcher.Constraint("Coincident", 1, 1, 2, 1),
    Sketcher.Constraint("Coincident", 2, 2, 3, 1),
    Sketcher.Constraint("Coincident", 3, 2, 0, 1),
    Sketcher.Constraint("Coincident", 4, 2, 5, 1),
    Sketcher.Constraint("Coincident", 5, 2, 6, 2),
    Sketcher.Constraint("Coincident", 6, 1, 7, 1),
    Sketcher.Constraint("Coincident", 7, 2, 4, 1),
    Sketcher.Constraint("Vertical", 3),
    Sketcher.Constraint("Vertical", 4),
    Sketcher.Constraint("Equal", 1, 6),
    Sketcher.Constraint("Symmetric", 1, 3, 6, 3, -1, 1),
    Sketcher.Constraint("Symmetric", 3, 2, 4, 2, -1, 1),
    Sketcher.Constraint("Symmetric", 1, 1, 5, 2, -2),
    Sketcher.Constraint("Parallel", 0, 5),
    Sketcher.Constraint("Parallel", 2, 7),
    Sketcher.Constraint("Horizontal", 2, 2, 4, 2),
    Sketcher.Constraint("Horizontal", 0, 2, 6, 1),
    Sketcher.Constraint("Radius", 1, 3.0),
    Sketcher.Constraint("Angle", 0, Q("165 deg")),
    Sketcher.Constraint("DistanceX", -1, 1, 1, 3, 6.0),
    Sketcher.Constraint("DistanceX", 5, 2, 1, 1, 9.0),
    Sketcher.Constraint("Distance", 0, 9.920492),
])
pocket7 = body.newObject("PartDesign::Pocket", "Pocket006")
pocket7.Profile = sketch11
pocket7.Type = "ThroughAll"
pocket7.Reversed = True
doc.recompute()

polarpattern = body.newObject("PartDesign::PolarPattern", "PolarPattern")
polarpattern.Originals = [pocket4]
polarpattern.Axis = (doc.getObject("Z_Axis"), [""])
polarpattern.Angle = 360
polarpattern.Occurrences = 4
body.Tip = polarpattern

# Sketch on XY plane
sketch12 = body.newObject("Sketcher::SketchObject", "Sketch011")
sketch12.AttachmentSupport = (doc.getObject("XY_Plane"), [""])
sketch12.MapMode = "FlatFace"
sketch12.addGeometry([
    Part.LineSegment(App.Vector(-7.5, -13, 0), App.Vector(-12.1, -13, 0)),  # 0
    Part.ArcOfCircle(Part.Circle(App.Vector(-12.1, -11, 0), App.Vector(0, 0, 1), 2), math.radians(180), math.radians(270)),  # 1
    Part.LineSegment(App.Vector(-14.1, -11, 0), App.Vector(-14.1, -5.2, 0)),  # 2
    Part.ArcOfCircle(Part.Circle(App.Vector(0, 0, 0), App.Vector(0, 0, 1), 15), math.radians(-160), math.radians(-120)),  # 3
    Part.LineSegment(App.Vector(14.1, -5.2, 0), App.Vector(14.1, -11, 0)),  # 4
    Part.ArcOfCircle(Part.Circle(App.Vector(12.1, -11, 0), App.Vector(0, 0, 1), 2), math.radians(-90), math.radians(0)),  # 5
    Part.LineSegment(App.Vector(12.1, -13, 0), App.Vector(7.5, -13, 0)),  # 6
    Part.ArcOfCircle(Part.Circle(App.Vector(0, 0, 0), App.Vector(0, 0, 1), 15), math.radians(-60), math.radians(-20)),  # 7
    Part.LineSegment(App.Vector(7.5, 13, 0), App.Vector(12.1, 13, 0)),  # 8
    Part.ArcOfCircle(Part.Circle(App.Vector(12.1, 11, 0), App.Vector(0, 0, 1), 2), math.radians(0), math.radians(90)),  # 9
    Part.LineSegment(App.Vector(14.1, 11, 0), App.Vector(14.1, 5.2, 0)),  # 10
    Part.ArcOfCircle(Part.Circle(App.Vector(0, 0, 0), App.Vector(0, 0, 1), 15), math.radians(20), math.radians(60)),  # 11
    Part.LineSegment(App.Vector(-14.1, 5.2, 0), App.Vector(-14.1, 11, 0)),  # 12
    Part.ArcOfCircle(Part.Circle(App.Vector(-12.1, 11, 0), App.Vector(0, 0, 1), 2), math.radians(90), math.radians(180)),  # 13
    Part.LineSegment(App.Vector(-12.1, 13, 0), App.Vector(-7.5, 13, 0)),  # 14
    Part.ArcOfCircle(Part.Circle(App.Vector(0, 0, 0), App.Vector(0, 0, 1), 15), math.radians(120), math.radians(160)),  # 15
], False)
sketch12.addConstraint([
    Sketcher.Constraint("Tangent", 0, 2, 1, 2),
    Sketcher.Constraint("Tangent", 1, 1, 2, 1),
    Sketcher.Constraint("Coincident", 2, 2, 3, 1),
    Sketcher.Constraint("Coincident", 3, 2, 0, 1),
    Sketcher.Constraint("Tangent", 4, 2, 5, 2),
    Sketcher.Constraint("Tangent", 5, 1, 6, 1),
    Sketcher.Constraint("Coincident", 6, 2, 7, 1),
    Sketcher.Constraint("Coincident", 7, 2, 4, 1),
    Sketcher.Constraint("Tangent", 8, 2, 9, 2),
    Sketcher.Constraint("Tangent", 9, 1, 10, 1),
    Sketcher.Constraint("Coincident", 10, 2, 11, 1),
    Sketcher.Constraint("Coincident", 11, 2, 8, 1),
    Sketcher.Constraint("Tangent", 12, 2, 13, 2),
    Sketcher.Constraint("Tangent", 13, 1, 14, 1),
    Sketcher.Constraint("Coincident", 14, 2, 15, 1),
    Sketcher.Constraint("Coincident", 15, 2, 12, 1),
    Sketcher.Constraint("Horizontal", 0),
    Sketcher.Constraint("Vertical", 2),
    Sketcher.Constraint("Vertical", 4),
    Sketcher.Constraint("Horizontal", 6),
    Sketcher.Constraint("Horizontal", 8),
    Sketcher.Constraint("Vertical", 10),
    Sketcher.Constraint("Vertical", 12),
    Sketcher.Constraint("Horizontal", 14),
    Sketcher.Constraint("Coincident", 3, 3, -1, 1),
    Sketcher.Constraint("Coincident", 7, 3, -1, 1),
    Sketcher.Constraint("Coincident", 11, 3, -1, 1),
    Sketcher.Constraint("Coincident", 15, 3, -1, 1),
    Sketcher.Constraint("Equal", 1, 5),
    Sketcher.Constraint("Equal", 3, 7),
    Sketcher.Constraint("Equal", 5, 9),
    Sketcher.Constraint("Equal", 7, 11),
    Sketcher.Constraint("Equal", 9, 13),
    Sketcher.Constraint("Equal", 11, 15),
    Sketcher.Constraint("Symmetric", 1, 3, 9, 3, -1, 1),
    Sketcher.Constraint("Symmetric", 5, 3, 13, 3, -1, 1),
    Sketcher.Constraint("Symmetric", 1, 3, 5, 3, -2),
    Sketcher.Constraint("Radius", 1, 2.0),
    Sketcher.Constraint("Radius", 3, 15.0),
    Sketcher.Constraint("DistanceY", 1, 3, -1, 1, 10.99),
    Sketcher.Constraint("DistanceX", 0, 2, 0, 1, 4.581799),
])
pad5 = body.newObject("PartDesign::Pad", "Pad004")
pad5.Profile = sketch12
pad5.Length = 86

# Sketch on XY plane
sketch13 = body.newObject("Sketcher::SketchObject", "Sketch012")
sketch13.AttachmentSupport = (doc.getObject("XY_Plane"), [""])
sketch13.MapMode = "FlatFace"
sketch13.addGeometry([
    Part.LineSegment(App.Vector(26.9, 26.9, 0), App.Vector(26.9, -26.9, 0)),  # 0
    Part.LineSegment(App.Vector(26.9, -26.9, 0), App.Vector(-26.9, -26.9, 0)),  # 1
    Part.LineSegment(App.Vector(-26.9, -26.9, 0), App.Vector(-26.9, 26.9, 0)),  # 2
    Part.LineSegment(App.Vector(-26.9, 26.9, 0), App.Vector(26.9, 26.9, 0)),  # 3
    Part.LineSegment(App.Vector(12.1, 13, 0), App.Vector(-12.1, 13, 0)),  # 4
    Part.ArcOfCircle(Part.Circle(App.Vector(-12.1, 11, 0), App.Vector(0, 0, 1), 2), math.radians(90), math.radians(180)),  # 5
    Part.LineSegment(App.Vector(-14.1, 11, 0), App.Vector(-14.1, -11, 0)),  # 6
    Part.ArcOfCircle(Part.Circle(App.Vector(-12.1, -11, 0), App.Vector(0, 0, 1), 2), math.radians(180), math.radians(270)),  # 7
    Part.LineSegment(App.Vector(-12.1, -13, 0), App.Vector(12.1, -13, 0)),  # 8
    Part.ArcOfCircle(Part.Circle(App.Vector(12.1, -11, 0), App.Vector(0, 0, 1), 2), math.radians(-90), math.radians(0)),  # 9
    Part.LineSegment(App.Vector(14.1, -11, 0), App.Vector(14.1, 11, 0)),  # 10
    Part.ArcOfCircle(Part.Circle(App.Vector(12.1, 11, 0), App.Vector(0, 0, 1), 2), math.radians(0), math.radians(90)),  # 11
], False)
sketch13.addConstraint([
    Sketcher.Constraint("Coincident", 0, 2, 1, 1),
    Sketcher.Constraint("Coincident", 1, 2, 2, 1),
    Sketcher.Constraint("Coincident", 2, 2, 3, 1),
    Sketcher.Constraint("Coincident", 3, 2, 0, 1),
    Sketcher.Constraint("Tangent", 4, 2, 5, 1),
    Sketcher.Constraint("Tangent", 5, 2, 6, 1),
    Sketcher.Constraint("Tangent", 6, 2, 7, 1),
    Sketcher.Constraint("Tangent", 7, 2, 8, 1),
    Sketcher.Constraint("Tangent", 8, 2, 9, 1),
    Sketcher.Constraint("Tangent", 9, 2, 10, 1),
    Sketcher.Constraint("Tangent", 10, 2, 11, 1),
    Sketcher.Constraint("Tangent", 11, 2, 4, 1),
    Sketcher.Constraint("Vertical", 0),
    Sketcher.Constraint("Horizontal", 1),
    Sketcher.Constraint("Vertical", 2),
    Sketcher.Constraint("Horizontal", 3),
    Sketcher.Constraint("Horizontal", 4),
    Sketcher.Constraint("Vertical", 6),
    Sketcher.Constraint("Horizontal", 8),
    Sketcher.Constraint("Vertical", 10),
    Sketcher.Constraint("Equal", 5, 7),
    Sketcher.Constraint("Equal", 7, 9),
    Sketcher.Constraint("Equal", 9, 11),
    Sketcher.Constraint("Symmetric", 5, 3, 9, 3, -1, 1),
    Sketcher.Constraint("Symmetric", 0, 2, 2, 2, -1, 1),
    Sketcher.Constraint("Equal", 3, 0),
    Sketcher.Constraint("Radius", 5, 2.0),
    Sketcher.Constraint("DistanceY", 6, 2, 6, 1, 21.98),
    Sketcher.Constraint("DistanceX", 1, 2, 1, 1, 53.726),
    Sketcher.Constraint("DistanceX", 4, 2, 4, 1, 24.164919),
])
pocket8 = body.newObject("PartDesign::Pocket", "Pocket007")
pocket8.Profile = sketch13
pocket8.Type = "ThroughAll"
pocket8.Reversed = True

# Sketch on XY plane
sketch14 = body.newObject("Sketcher::SketchObject", "Sketch013")
sketch14.AttachmentSupport = (doc.getObject("XY_Plane"), [""])
sketch14.MapMode = "FlatFace"
sketch14.addGeometry([
    Part.LineSegment(App.Vector(14.1, 11, 0), App.Vector(14.1, -11, 0)),  # 0
    Part.ArcOfCircle(Part.Circle(App.Vector(12.1, -11, 0), App.Vector(0, 0, 1), 2), math.radians(-90), math.radians(0)),  # 1
    Part.LineSegment(App.Vector(12.1, -13, 0), App.Vector(-12.1, -13, 0)),  # 2
    Part.ArcOfCircle(Part.Circle(App.Vector(-12.1, -11, 0), App.Vector(0, 0, 1), 2), math.radians(180), math.radians(270)),  # 3
    Part.LineSegment(App.Vector(-14.1, -11, 0), App.Vector(-14.1, 11, 0)),  # 4
    Part.ArcOfCircle(Part.Circle(App.Vector(-12.1, 11, 0), App.Vector(0, 0, 1), 2), math.radians(90), math.radians(180)),  # 5
    Part.LineSegment(App.Vector(-12.1, 13, 0), App.Vector(12.1, 13, 0)),  # 6
    Part.ArcOfCircle(Part.Circle(App.Vector(12.1, 11, 0), App.Vector(0, 0, 1), 2), math.radians(0), math.radians(90)),  # 7
    Part.Circle(App.Vector(0, -12, 0), App.Vector(0, 0, 1), 0.8),  # 8
    Part.Circle(App.Vector(12, 0, 0), App.Vector(0, 0, 1), 0.8),  # 9
    Part.Circle(App.Vector(0, 0, 0), App.Vector(0, 0, 1), 10),  # 10
    Part.Circle(App.Vector(-12, 0, 0), App.Vector(0, 0, 1), 0.8),  # 11
    Part.Circle(App.Vector(0, 12, 0), App.Vector(0, 0, 1), 0.8),  # 12
], False)
sketch14.addConstraint([
    Sketcher.Constraint("Tangent", 0, 2, 1, 2),
    Sketcher.Constraint("Tangent", 1, 1, 2, 1),
    Sketcher.Constraint("Tangent", 2, 2, 3, 2),
    Sketcher.Constraint("Tangent", 3, 1, 4, 1),
    Sketcher.Constraint("Tangent", 4, 2, 5, 2),
    Sketcher.Constraint("Tangent", 5, 1, 6, 1),
    Sketcher.Constraint("Tangent", 6, 2, 7, 2),
    Sketcher.Constraint("Tangent", 7, 1, 0, 1),
    Sketcher.Constraint("Vertical", 0),
    Sketcher.Constraint("Horizontal", 2),
    Sketcher.Constraint("Vertical", 4),
    Sketcher.Constraint("Horizontal", 6),
    Sketcher.Constraint("Coincident", 10, 3, -1, 1),
    Sketcher.Constraint("Equal", 1, 3),
    Sketcher.Constraint("Equal", 3, 5),
    Sketcher.Constraint("Equal", 5, 7),
    Sketcher.Constraint("Equal", 8, 9),
    Sketcher.Constraint("Equal", 9, 11),
    Sketcher.Constraint("Equal", 11, 12),
    Sketcher.Constraint("Symmetric", 1, 3, 5, 3, -1, 1),
    Sketcher.Constraint("Symmetric", 9, 3, 11, 3, -1, 1),
    Sketcher.Constraint("Symmetric", 8, 3, 12, 3, -1, 1),
    Sketcher.Constraint("PointOnObject", 8, 3, -2),
    Sketcher.Constraint("PointOnObject", 9, 3, -1),
    Sketcher.Constraint("Diameter", 10, 20.0),
    Sketcher.Constraint("Radius", 1, 2.0),
    Sketcher.Constraint("Diameter", 8, 1.6),
    Sketcher.Constraint("DistanceY", 8, 3, -1, 1, 12.0),
    Sketcher.Constraint("DistanceX", -1, 1, 9, 3, 12.0),
    Sketcher.Constraint("DistanceY", 0, 2, 0, 1, 21.98),
    Sketcher.Constraint("DistanceX", 2, 2, 2, 1, 24.164919),
])
pad6 = body.newObject("PartDesign::Pad", "Pad005")
pad6.Profile = sketch14
pad6.Length = 3
pad6.Reversed = True
doc.recompute()

fillet3 = body.newObject("PartDesign::Fillet", "Fillet002")
fillet3.Base = (pad6, edges_at(pad6, [
    (7.5, 12.99, 45),
    (-7.5, 12.99, 45),
    (-7.5, -12.99, 45),
    (7.5, -12.99, 45),
    (-14.082, -5.166, 52),
    (-14.082, 5.166, 52),
    (14.082, 5.166, 52),
    (14.082, -5.166, 52),
]))
fillet3.Radius = 2

# Sketch on XY plane
sketch15 = body.newObject("Sketcher::SketchObject", "Sketch014")
sketch15.AttachmentSupport = (doc.getObject("XY_Plane"), [""])
sketch15.MapMode = "FlatFace"
sketch15.AttachmentOffset = App.Placement(App.Vector(0, 0, 4), App.Rotation())
sketch15.addGeometry([
    Part.Circle(App.Vector(0, -12, 0), App.Vector(0, 0, 1), 0.8),
    Part.Circle(App.Vector(12, 0, 0), App.Vector(0, 0, 1), 0.8),
    Part.Circle(App.Vector(0, 12, 0), App.Vector(0, 0, 1), 0.8),
    Part.Circle(App.Vector(-12, 0, 0), App.Vector(0, 0, 1), 0.8),
], False)
sketch15.addConstraint([
    Sketcher.Constraint("Equal", 0, 1),
    Sketcher.Constraint("Equal", 1, 2),
    Sketcher.Constraint("Equal", 2, 3),
    Sketcher.Constraint("Symmetric", 0, 3, 2, 3, -1, 1),
    Sketcher.Constraint("Symmetric", 1, 3, 3, 3, -1, 1),
    Sketcher.Constraint("PointOnObject", 0, 3, -2),
    Sketcher.Constraint("PointOnObject", 1, 3, -1),
    Sketcher.Constraint("Diameter", 0, 1.6),
    Sketcher.Constraint("DistanceY", 0, 3, -1, 1, 12.0),
    Sketcher.Constraint("DistanceX", -1, 1, 1, 3, 12.0),
])
pad7 = body.newObject("PartDesign::Pad", "Pad006")
pad7.Profile = sketch15
pad7.Length = 7
pad7.Reversed = True

doc.recompute()
